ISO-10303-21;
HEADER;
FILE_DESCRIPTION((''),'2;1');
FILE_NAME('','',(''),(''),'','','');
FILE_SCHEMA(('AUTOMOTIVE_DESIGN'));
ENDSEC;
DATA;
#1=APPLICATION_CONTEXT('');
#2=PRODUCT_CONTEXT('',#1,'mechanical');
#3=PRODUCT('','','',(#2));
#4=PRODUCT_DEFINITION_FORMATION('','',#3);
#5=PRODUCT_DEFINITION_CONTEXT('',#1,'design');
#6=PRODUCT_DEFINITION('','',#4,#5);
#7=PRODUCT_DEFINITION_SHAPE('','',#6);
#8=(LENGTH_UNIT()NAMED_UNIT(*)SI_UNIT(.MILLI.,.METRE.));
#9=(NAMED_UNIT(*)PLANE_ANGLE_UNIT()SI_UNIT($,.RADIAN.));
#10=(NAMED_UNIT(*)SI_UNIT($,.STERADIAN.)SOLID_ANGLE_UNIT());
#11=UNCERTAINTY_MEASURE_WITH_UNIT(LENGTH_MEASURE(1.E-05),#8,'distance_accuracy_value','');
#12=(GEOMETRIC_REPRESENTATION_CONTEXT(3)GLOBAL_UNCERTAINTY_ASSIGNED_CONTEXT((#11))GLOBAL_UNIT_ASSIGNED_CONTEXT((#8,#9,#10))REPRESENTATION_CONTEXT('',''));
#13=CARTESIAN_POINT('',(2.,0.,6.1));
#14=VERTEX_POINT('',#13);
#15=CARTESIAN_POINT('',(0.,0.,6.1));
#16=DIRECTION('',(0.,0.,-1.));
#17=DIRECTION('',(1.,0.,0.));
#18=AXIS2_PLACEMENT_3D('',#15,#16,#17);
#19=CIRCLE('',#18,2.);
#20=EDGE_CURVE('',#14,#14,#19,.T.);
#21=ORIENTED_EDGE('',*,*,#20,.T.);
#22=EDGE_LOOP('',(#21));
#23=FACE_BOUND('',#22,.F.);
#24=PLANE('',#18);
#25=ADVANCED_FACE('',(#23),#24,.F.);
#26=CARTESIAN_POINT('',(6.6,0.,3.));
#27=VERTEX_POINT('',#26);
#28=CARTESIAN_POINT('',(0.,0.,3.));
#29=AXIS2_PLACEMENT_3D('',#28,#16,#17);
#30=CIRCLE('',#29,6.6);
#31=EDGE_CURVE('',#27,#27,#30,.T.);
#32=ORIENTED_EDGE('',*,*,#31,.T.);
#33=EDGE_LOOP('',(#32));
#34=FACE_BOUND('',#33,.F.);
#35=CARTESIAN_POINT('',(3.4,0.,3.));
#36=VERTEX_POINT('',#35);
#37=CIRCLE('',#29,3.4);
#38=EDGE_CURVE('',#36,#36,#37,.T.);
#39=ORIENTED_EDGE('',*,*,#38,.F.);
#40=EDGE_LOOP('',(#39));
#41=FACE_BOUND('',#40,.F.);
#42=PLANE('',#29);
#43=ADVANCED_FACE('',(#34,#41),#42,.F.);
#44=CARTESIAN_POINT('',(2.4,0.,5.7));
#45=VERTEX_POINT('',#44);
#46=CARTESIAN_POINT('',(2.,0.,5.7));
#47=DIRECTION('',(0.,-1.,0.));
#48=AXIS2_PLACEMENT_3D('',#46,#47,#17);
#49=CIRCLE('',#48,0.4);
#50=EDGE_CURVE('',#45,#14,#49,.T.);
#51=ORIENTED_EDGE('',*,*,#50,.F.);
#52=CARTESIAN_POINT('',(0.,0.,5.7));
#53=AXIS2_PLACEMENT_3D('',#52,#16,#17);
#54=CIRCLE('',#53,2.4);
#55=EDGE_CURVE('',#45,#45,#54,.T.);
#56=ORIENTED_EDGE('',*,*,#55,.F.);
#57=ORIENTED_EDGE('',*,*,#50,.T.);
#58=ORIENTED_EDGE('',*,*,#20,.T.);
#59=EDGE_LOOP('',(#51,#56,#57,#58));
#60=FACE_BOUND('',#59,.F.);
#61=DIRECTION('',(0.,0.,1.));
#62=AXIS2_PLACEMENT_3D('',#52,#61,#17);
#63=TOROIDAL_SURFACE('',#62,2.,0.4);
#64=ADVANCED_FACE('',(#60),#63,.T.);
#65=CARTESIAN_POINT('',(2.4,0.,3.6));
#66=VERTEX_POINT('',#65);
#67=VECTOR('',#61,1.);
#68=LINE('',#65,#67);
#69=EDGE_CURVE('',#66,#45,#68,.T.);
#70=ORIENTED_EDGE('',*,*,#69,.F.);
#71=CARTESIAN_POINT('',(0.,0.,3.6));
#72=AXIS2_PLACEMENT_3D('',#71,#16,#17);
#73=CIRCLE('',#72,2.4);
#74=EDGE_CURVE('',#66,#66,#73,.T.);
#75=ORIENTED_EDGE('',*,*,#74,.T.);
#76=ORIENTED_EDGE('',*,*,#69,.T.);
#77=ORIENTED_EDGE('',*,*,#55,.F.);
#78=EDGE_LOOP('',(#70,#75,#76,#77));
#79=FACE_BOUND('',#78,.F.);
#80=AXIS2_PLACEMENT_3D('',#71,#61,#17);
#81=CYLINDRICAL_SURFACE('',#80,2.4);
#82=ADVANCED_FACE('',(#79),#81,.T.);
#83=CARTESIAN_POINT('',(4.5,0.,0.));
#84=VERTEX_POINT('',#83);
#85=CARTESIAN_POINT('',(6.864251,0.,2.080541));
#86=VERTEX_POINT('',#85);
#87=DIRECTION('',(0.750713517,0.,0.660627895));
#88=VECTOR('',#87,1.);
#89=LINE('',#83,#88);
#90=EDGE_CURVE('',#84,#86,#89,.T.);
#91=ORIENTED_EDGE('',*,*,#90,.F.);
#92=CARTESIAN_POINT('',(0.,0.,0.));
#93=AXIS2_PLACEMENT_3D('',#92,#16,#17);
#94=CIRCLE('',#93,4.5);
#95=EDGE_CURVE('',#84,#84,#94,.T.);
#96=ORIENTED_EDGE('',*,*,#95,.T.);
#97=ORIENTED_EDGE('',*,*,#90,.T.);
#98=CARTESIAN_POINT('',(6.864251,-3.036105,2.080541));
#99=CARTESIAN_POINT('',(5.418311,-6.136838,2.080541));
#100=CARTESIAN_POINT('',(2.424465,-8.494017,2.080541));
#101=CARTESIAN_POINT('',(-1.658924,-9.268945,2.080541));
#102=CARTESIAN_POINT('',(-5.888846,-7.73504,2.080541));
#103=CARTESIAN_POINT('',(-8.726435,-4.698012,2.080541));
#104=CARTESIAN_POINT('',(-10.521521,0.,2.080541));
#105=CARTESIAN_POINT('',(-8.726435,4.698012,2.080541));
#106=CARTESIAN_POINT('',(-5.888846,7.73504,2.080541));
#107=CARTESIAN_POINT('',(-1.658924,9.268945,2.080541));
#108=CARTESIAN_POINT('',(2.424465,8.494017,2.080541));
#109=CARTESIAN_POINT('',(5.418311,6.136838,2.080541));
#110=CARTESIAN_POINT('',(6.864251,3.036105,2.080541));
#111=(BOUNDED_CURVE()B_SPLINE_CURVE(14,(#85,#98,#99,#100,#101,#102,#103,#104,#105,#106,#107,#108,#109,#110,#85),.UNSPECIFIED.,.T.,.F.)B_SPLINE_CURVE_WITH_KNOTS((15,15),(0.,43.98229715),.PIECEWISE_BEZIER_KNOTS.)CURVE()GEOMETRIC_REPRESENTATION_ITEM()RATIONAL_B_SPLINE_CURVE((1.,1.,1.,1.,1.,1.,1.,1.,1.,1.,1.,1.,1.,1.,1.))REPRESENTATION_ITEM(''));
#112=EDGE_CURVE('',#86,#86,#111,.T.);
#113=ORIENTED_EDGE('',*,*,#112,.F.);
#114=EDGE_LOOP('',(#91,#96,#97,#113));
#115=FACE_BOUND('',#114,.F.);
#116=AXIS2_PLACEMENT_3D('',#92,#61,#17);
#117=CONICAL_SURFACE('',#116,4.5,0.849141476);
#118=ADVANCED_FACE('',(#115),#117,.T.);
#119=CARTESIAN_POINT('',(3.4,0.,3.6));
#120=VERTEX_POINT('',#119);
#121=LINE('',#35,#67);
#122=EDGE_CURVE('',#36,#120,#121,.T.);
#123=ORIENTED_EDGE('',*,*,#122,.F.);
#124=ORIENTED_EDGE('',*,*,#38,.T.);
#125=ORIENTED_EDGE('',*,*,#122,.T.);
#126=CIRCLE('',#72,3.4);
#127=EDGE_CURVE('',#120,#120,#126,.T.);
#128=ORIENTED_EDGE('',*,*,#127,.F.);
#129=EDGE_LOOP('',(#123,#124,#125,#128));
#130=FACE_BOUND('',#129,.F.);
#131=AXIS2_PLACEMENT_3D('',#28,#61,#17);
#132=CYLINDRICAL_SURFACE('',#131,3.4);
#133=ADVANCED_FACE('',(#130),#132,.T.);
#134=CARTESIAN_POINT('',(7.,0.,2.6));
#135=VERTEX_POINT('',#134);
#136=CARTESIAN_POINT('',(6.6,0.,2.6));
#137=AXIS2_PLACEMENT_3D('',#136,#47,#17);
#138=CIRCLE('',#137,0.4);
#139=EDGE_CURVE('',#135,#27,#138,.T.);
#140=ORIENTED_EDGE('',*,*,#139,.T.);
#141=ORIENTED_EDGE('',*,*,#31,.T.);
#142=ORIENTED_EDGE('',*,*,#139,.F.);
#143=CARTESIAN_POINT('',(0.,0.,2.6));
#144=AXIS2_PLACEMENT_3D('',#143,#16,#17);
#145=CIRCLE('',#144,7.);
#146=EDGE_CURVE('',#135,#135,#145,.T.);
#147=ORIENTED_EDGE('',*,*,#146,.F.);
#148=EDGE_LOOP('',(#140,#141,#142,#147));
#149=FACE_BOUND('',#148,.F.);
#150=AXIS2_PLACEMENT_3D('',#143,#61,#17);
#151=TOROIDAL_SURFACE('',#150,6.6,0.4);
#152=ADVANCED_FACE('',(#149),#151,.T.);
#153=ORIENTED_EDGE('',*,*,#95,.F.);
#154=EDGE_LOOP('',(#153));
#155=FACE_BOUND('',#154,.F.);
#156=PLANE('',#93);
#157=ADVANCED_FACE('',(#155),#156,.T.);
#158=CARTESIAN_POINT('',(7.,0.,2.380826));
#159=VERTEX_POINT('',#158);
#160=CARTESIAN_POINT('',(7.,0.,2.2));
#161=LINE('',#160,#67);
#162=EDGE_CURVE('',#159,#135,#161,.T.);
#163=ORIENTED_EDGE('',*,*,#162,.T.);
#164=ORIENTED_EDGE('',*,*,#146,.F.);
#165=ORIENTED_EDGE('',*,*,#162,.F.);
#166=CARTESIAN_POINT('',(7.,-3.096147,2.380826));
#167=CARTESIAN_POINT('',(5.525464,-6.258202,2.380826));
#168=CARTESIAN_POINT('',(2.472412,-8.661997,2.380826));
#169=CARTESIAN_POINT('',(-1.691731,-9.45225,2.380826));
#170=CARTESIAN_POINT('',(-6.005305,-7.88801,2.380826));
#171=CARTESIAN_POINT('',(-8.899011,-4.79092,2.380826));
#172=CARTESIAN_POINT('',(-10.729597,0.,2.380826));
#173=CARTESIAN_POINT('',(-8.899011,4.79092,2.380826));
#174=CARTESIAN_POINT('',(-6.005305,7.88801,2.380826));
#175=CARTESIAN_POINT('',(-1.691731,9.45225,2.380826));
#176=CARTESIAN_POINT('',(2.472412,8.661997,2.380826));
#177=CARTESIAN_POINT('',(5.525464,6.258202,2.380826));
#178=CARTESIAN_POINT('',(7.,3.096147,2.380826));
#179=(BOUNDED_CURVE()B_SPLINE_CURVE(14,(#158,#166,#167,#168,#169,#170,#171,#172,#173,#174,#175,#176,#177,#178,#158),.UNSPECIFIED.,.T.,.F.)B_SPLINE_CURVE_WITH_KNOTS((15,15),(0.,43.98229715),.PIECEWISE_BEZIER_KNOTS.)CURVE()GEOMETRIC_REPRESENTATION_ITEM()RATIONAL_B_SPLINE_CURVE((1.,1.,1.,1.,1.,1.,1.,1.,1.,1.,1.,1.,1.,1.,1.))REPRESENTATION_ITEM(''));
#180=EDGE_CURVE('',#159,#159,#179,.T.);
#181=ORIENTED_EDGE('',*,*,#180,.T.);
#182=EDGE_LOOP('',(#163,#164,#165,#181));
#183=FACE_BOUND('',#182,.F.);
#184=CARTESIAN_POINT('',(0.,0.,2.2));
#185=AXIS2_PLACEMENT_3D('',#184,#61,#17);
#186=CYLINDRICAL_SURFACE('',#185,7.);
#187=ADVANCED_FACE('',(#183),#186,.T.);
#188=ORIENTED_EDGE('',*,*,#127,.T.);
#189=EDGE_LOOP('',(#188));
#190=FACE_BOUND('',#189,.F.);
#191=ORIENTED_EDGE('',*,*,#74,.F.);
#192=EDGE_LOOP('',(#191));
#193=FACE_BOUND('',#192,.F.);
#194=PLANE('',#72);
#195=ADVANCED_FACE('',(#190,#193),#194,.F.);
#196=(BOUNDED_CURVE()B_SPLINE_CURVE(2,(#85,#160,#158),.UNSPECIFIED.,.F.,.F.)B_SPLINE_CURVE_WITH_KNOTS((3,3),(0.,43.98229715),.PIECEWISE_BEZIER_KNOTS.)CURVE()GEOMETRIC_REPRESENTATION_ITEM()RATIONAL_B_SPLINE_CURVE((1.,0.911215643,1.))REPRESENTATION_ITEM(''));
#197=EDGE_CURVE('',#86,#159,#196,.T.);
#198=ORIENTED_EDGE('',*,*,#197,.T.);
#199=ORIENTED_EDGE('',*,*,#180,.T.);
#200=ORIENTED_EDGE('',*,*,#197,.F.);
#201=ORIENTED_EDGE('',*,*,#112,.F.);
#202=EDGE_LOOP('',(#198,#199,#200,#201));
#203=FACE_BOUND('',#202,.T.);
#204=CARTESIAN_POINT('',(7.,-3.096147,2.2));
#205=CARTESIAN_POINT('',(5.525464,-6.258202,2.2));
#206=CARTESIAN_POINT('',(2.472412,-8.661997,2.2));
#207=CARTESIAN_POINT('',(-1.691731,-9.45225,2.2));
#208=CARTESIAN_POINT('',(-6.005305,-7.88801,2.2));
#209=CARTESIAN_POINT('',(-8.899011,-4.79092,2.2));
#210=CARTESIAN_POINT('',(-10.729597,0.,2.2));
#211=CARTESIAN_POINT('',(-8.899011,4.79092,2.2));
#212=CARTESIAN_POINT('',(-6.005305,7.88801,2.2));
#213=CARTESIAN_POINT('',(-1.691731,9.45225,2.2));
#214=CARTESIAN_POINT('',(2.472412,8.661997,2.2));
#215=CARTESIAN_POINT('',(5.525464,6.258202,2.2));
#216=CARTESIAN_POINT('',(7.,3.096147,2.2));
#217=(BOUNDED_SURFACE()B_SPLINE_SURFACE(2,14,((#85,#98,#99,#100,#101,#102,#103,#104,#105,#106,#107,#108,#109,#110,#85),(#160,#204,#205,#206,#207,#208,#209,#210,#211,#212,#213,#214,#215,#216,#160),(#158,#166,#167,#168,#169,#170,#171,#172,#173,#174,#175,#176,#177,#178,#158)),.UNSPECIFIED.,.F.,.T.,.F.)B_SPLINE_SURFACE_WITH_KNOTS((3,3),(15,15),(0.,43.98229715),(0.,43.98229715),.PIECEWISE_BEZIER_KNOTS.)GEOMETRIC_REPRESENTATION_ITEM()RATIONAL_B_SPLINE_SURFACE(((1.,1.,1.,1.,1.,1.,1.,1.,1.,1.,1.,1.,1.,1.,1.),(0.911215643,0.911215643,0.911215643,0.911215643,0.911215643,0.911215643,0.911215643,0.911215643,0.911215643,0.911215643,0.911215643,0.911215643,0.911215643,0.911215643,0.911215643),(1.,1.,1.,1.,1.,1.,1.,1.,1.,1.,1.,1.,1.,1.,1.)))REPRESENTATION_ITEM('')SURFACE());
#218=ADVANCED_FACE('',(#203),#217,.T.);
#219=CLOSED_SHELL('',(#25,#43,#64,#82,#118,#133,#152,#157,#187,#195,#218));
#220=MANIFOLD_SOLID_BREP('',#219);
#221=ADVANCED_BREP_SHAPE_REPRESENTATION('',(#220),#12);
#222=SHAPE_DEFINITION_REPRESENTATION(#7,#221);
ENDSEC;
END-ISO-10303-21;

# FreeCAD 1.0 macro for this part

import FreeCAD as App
import Part
import Sketcher

V = App.Vector


def edges_at(feature, points):
    """Names of the edges that pass closest to the given points."""
    edges = feature.Shape.Edges
    near = lambda p: min(range(len(edges)), key=lambda i: edges[i].distToShape(Part.Vertex(*p))[0])
    return sorted({f"Edge{near(p) + 1}" for p in points})


def add_polygon(sketch, points):
    """Adds a closed chain of lines whose ends are joined by coincident constraints."""
    first, n = sketch.GeometryCount, len(points)
    for a, b in zip(points, points[1:] + points[:1]):
        sketch.addGeometry(Part.LineSegment(App.Vector(*a, 0), App.Vector(*b, 0)), False)
    for i in range(n):
        sketch.addConstraint(Sketcher.Constraint("Coincident", first + i, 2, first + (i + 1) % n, 1))

doc = App.newDocument("Part")
body = doc.addObject("PartDesign::Body", "Body")

# Sketch on XZ plane
sketch1 = body.newObject("Sketcher::SketchObject", "Sketch")
sketch1.AttachmentSupport = (doc.getObject("XZ_Plane"), [""])
sketch1.MapMode = "FlatFace"
add_polygon(sketch1, [(0, 6.1), (0, 0), (4.5, 0), (7, 2.2), (7, 3), (3.4, 3), (3.4, 3.6), (2.4, 3.6), (2.4, 6.1)])  # lines 0-8
sketch1.addConstraint([
    Sketcher.Constraint("Vertical", 0),
    Sketcher.Constraint("Horizontal", 1),
    Sketcher.Constraint("Vertical", 3),
    Sketcher.Constraint("Horizontal", 4),
    Sketcher.Constraint("Vertical", 5),
    Sketcher.Constraint("Horizontal", 6),
    Sketcher.Constraint("Vertical", 7),
    Sketcher.Constraint("Horizontal", 8),
    Sketcher.Constraint("Coincident", 0, 2, -1, 1),
    Sketcher.Constraint("DistanceX", 6, 2, 6, 1, 1.0),
    Sketcher.Constraint("DistanceX", 1, 1, 1, 2, 4.5),
    Sketcher.Constraint("DistanceX", 4, 2, 4, 1, 3.6),
    Sketcher.Constraint("DistanceX", 8, 2, 8, 1, 2.4),
    Sketcher.Constraint("DistanceY", 0, 2, 0, 1, 6.1),
    Sketcher.Constraint("DistanceY", 3, 1, 3, 2, 0.8),
    Sketcher.Constraint("DistanceY", 5, 1, 5, 2, 0.6),
    Sketcher.Constraint("DistanceY", 7, 1, 7, 2, 2.5),
])
revolution = body.newObject("PartDesign::Revolution", "Revolution")
revolution.Profile = sketch1
revolution.ReferenceAxis = (sketch1, ["V_Axis"])
revolution.Angle = 360
doc.recompute()

fillet = body.newObject("PartDesign::Fillet", "Fillet")
fillet.Base = (revolution, edges_at(revolution, [(-7, 0, 2.2), (-2.4, 0, 6.1), (-7, 0, 3)]))
fillet.Radius = 0.4

doc.recompute()
